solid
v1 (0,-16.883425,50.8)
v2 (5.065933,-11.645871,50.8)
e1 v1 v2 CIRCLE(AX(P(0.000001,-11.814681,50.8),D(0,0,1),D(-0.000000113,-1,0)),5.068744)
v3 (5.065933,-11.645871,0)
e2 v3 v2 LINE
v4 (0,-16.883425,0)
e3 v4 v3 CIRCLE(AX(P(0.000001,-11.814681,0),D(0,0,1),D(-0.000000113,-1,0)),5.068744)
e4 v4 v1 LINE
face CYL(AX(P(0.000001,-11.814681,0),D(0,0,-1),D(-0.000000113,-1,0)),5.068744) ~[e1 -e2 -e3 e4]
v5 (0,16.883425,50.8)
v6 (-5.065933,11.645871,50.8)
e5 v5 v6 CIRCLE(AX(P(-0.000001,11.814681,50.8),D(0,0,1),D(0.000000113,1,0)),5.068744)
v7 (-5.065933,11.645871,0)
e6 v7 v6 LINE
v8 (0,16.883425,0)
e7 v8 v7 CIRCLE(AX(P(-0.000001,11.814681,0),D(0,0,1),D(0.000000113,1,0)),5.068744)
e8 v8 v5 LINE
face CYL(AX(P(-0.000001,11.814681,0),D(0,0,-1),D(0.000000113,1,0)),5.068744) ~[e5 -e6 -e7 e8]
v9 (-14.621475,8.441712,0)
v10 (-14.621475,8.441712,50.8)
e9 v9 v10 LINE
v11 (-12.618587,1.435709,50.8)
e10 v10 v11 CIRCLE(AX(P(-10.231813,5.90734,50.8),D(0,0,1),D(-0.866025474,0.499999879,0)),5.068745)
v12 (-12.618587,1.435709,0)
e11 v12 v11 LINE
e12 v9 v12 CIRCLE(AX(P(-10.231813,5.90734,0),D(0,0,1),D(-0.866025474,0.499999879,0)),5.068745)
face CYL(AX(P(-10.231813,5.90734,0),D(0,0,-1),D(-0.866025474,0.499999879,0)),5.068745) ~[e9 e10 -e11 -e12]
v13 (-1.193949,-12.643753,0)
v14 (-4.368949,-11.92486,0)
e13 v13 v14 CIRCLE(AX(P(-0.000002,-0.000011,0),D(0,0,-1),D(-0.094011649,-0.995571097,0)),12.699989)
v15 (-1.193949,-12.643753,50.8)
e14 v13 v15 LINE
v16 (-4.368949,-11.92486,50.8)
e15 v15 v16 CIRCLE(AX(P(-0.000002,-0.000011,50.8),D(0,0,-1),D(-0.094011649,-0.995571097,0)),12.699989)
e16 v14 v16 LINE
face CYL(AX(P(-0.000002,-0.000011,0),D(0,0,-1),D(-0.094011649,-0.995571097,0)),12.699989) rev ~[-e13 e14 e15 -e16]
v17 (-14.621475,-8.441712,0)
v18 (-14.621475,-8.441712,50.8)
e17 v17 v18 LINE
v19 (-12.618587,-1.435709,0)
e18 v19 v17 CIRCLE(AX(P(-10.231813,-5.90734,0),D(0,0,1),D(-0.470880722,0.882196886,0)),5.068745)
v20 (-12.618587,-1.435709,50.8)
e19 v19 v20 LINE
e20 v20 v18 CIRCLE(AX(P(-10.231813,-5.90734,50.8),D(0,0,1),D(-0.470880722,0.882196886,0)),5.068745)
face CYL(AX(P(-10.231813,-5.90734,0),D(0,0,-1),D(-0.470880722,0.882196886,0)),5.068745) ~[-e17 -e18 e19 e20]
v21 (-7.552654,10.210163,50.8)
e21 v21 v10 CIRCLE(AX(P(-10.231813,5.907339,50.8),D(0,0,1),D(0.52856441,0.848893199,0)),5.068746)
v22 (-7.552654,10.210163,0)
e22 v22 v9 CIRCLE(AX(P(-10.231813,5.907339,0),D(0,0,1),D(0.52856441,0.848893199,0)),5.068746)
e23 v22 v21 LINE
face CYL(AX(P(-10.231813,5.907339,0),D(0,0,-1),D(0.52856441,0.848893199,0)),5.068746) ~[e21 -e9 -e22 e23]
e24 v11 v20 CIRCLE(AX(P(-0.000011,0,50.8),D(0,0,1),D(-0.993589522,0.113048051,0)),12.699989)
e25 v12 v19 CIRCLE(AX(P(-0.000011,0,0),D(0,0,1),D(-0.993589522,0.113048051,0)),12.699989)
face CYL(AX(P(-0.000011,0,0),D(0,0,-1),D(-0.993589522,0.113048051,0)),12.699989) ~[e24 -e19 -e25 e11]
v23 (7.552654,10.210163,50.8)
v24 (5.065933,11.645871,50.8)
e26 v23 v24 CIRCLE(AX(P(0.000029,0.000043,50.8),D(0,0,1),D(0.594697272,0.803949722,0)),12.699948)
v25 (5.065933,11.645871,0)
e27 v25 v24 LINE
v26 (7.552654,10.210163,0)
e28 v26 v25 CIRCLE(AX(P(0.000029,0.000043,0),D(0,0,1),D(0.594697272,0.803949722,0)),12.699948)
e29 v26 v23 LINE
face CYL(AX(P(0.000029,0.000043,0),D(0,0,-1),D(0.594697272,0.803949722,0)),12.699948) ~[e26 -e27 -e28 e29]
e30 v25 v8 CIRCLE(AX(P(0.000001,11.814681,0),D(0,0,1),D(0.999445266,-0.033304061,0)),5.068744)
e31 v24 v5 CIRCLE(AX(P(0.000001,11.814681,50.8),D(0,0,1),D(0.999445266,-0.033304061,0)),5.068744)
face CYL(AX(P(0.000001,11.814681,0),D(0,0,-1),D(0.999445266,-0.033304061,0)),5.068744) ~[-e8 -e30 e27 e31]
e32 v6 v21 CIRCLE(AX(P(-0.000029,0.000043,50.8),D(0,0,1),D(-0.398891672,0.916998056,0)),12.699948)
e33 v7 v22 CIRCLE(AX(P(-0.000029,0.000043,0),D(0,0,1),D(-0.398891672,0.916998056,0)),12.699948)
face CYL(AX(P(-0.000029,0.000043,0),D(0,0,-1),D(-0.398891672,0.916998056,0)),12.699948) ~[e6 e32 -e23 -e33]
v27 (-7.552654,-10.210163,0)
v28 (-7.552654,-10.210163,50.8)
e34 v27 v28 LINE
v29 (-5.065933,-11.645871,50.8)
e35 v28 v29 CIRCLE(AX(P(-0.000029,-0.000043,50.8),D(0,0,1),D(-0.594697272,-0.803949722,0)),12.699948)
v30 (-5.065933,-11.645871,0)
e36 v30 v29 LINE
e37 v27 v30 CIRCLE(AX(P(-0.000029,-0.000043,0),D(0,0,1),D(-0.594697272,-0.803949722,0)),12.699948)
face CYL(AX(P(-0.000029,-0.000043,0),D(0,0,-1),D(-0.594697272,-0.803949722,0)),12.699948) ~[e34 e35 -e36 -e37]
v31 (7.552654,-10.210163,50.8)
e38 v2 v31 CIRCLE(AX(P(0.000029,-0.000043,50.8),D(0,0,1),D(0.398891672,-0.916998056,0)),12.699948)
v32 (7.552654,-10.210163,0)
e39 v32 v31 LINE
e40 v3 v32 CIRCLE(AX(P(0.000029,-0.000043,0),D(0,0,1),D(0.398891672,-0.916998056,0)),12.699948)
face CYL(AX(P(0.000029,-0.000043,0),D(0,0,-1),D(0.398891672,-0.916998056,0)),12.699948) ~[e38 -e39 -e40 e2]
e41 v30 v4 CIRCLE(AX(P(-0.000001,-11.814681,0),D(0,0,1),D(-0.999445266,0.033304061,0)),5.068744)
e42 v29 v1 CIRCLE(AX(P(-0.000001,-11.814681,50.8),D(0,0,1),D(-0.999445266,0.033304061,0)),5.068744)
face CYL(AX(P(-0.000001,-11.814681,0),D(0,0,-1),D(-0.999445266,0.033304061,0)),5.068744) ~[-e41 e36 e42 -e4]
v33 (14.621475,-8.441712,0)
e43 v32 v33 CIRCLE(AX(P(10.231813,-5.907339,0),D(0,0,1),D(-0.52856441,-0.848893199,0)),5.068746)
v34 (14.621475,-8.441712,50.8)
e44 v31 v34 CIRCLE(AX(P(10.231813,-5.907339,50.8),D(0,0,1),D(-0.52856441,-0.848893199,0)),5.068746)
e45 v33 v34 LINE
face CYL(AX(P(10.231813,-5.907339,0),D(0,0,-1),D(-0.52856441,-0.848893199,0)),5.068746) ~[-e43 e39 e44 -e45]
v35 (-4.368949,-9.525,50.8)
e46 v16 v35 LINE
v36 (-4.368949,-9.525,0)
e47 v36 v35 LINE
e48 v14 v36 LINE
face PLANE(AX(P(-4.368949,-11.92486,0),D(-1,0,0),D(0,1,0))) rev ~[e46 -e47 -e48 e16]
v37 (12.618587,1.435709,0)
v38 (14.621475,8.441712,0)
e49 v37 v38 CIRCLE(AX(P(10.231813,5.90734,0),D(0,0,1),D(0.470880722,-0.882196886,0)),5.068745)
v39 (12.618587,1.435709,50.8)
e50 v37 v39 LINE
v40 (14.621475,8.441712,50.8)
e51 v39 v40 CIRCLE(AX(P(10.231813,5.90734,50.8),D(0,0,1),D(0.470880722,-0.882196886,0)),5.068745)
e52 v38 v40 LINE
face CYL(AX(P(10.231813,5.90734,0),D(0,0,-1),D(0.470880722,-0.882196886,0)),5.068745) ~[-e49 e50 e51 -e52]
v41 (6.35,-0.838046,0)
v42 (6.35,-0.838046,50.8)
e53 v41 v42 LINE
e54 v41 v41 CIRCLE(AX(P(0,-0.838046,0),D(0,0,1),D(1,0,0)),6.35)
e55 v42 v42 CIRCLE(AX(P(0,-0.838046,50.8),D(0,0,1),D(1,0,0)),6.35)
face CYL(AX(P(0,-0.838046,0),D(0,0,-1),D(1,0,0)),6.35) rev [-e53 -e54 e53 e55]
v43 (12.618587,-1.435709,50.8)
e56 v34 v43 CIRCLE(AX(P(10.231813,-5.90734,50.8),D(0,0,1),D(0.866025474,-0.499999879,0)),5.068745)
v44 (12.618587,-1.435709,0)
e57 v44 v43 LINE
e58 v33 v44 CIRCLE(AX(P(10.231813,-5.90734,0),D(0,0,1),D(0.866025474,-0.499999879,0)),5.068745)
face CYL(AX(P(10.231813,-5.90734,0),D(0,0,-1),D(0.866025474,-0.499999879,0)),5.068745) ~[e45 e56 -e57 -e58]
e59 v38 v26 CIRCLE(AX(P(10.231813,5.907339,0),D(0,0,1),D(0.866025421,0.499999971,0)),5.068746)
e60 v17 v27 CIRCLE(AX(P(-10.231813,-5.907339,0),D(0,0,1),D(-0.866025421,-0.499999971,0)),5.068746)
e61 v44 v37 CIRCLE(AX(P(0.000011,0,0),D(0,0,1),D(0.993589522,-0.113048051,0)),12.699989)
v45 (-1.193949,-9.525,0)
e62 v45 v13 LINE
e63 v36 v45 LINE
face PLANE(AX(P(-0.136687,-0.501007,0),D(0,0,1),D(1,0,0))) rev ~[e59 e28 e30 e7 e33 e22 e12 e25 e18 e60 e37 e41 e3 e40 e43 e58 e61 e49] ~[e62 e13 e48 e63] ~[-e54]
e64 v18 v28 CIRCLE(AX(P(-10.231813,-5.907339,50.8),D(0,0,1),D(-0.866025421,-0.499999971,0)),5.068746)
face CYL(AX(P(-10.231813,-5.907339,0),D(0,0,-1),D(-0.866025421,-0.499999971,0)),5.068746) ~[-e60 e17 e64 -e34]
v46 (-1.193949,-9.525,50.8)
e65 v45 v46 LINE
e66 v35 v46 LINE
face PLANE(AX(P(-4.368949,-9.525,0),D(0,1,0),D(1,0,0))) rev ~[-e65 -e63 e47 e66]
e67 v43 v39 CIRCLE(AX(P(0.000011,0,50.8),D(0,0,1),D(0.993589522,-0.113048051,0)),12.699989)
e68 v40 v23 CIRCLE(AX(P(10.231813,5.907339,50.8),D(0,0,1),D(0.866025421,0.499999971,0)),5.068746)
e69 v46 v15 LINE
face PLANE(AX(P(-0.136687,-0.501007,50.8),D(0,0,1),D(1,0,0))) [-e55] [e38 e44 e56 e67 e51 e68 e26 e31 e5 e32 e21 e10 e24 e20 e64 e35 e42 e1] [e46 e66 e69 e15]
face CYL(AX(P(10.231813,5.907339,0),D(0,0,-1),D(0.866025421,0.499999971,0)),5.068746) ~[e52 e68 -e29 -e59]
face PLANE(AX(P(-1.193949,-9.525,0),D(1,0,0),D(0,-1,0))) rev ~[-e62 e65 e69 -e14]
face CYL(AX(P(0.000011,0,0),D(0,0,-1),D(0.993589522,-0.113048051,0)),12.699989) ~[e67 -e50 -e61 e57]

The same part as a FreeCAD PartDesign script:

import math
import FreeCAD as App
import Part
import Sketcher
Q = App.Units.Quantity

doc = App.newDocument("Part")
params = doc.addObject("Spreadsheet::Sheet", "Params")
for row, (alias, value) in enumerate([
    ("sketch1_diameter", "0.5 in"),
    ("sketch1_width", "0.125 in"),
    ("pad1_length", "2 in"),
], start=1):
    params.set(f"A{row}", alias)
    params.set(f"B{row}", "=" + value)
    params.setAlias(f"B{row}", alias)

body = doc.addObject("PartDesign::Body", "Body")

sketch1 = body.newObject("Sketcher::SketchObject", "Sketch")
sketch1.AttachmentSupport = (doc.getObject("XY_Plane"), [""])
sketch1.MapMode = "FlatFace"
sketch1.addGeometry([
    Part.ArcOfCircle(Part.Circle(App.Vector(0.000001, 11.814681, 0), App.Vector(0, 0, 1), 5.068744), math.radians(-1.908535), math.radians(90.000006)),
    Part.ArcOfCircle(Part.Circle(App.Vector(-0.000001, 11.814681, 0), App.Vector(0, 0, 1), 5.068744), math.radians(89.999994), math.radians(181.908535)),
    Part.ArcOfCircle(Part.Circle(App.Vector(-0.000029, 0.000043, 0), App.Vector(0, 0, 1), 12.699948), math.radians(113.50891), math.radians(126.491054)),
    Part.ArcOfCircle(Part.Circle(App.Vector(-10.231813, 5.907339, 0), App.Vector(0, 0, 1), 5.068746), math.radians(58.091491), math.radians(150.000002)),
    Part.ArcOfCircle(Part.Circle(App.Vector(-10.231813, 5.90734, 0), App.Vector(0, 0, 1), 5.068745), math.radians(150.000008), math.radians(241.908519)),
    Part.ArcOfCircle(Part.Circle(App.Vector(-0.000011, 0, 0), App.Vector(0, 0, 1), 12.699989), math.radians(173.508948), math.radians(186.491052)),
    Part.ArcOfCircle(Part.Circle(App.Vector(-10.231813, -5.90734, 0), App.Vector(0, 0, 1), 5.068745), math.radians(118.091481), math.radians(209.999992)),
    Part.ArcOfCircle(Part.Circle(App.Vector(-10.231813, -5.907339, 0), App.Vector(0, 0, 1), 5.068746), math.radians(-150.000002), math.radians(-58.091491)),
    Part.ArcOfCircle(Part.Circle(App.Vector(-0.000029, -0.000043, 0), App.Vector(0, 0, 1), 12.699948), math.radians(-126.491054), math.radians(-113.50891)),
    Part.ArcOfCircle(Part.Circle(App.Vector(-0.000001, -11.814681, 0), App.Vector(0, 0, 1), 5.068744), math.radians(178.091465), math.radians(270.000006)),
    Part.ArcOfCircle(Part.Circle(App.Vector(0.000001, -11.814681, 0), App.Vector(0, 0, 1), 5.068744), math.radians(-90.000006), math.radians(1.908535)),
    Part.ArcOfCircle(Part.Circle(App.Vector(0.000029, -0.000043, 0), App.Vector(0, 0, 1), 12.699948), math.radians(-66.49109), math.radians(-53.508946)),
    Part.ArcOfCircle(Part.Circle(App.Vector(10.231813, -5.907339, 0), App.Vector(0, 0, 1), 5.068746), math.radians(-121.908509), math.radians(-29.999998)),
    Part.ArcOfCircle(Part.Circle(App.Vector(10.231813, -5.90734, 0), App.Vector(0, 0, 1), 5.068745), math.radians(-29.999992), math.radians(61.908519)),
    Part.ArcOfCircle(Part.Circle(App.Vector(0.000011, 0, 0), App.Vector(0, 0, 1), 12.699989), math.radians(-6.491052), math.radians(6.491052)),
    Part.ArcOfCircle(Part.Circle(App.Vector(10.231813, 5.90734, 0), App.Vector(0, 0, 1), 5.068745), math.radians(-61.908519), math.radians(29.999992)),
    Part.ArcOfCircle(Part.Circle(App.Vector(10.231813, 5.907339, 0), App.Vector(0, 0, 1), 5.068746), math.radians(29.999998), math.radians(121.908509)),
    Part.ArcOfCircle(Part.Circle(App.Vector(0.000029, 0.000043, 0), App.Vector(0, 0, 1), 12.699948), math.radians(53.508946), math.radians(66.49109)),
    Part.LineSegment(App.Vector(-4.368949, -11.92486, 0), App.Vector(-4.368949, -9.525, 0)),
    Part.LineSegment(App.Vector(-4.368949, -9.525, 0), App.Vector(-1.193949, -9.525, 0)),
    Part.LineSegment(App.Vector(-1.193949, -9.525, 0), App.Vector(-1.193949, -12.643753, 0)),
    Part.ArcOfCircle(Part.Circle(App.Vector(-0.000002, -0.000011, 0), App.Vector(0, 0, 1), 12.699989), math.radians(-110.121488), math.radians(-95.394437)),
    Part.Circle(App.Vector(0, -0.838046, 0), App.Vector(0, 0, 1), 6.35),
], False)
sketch1.addConstraint([
    Sketcher.Constraint("Tangent", 0, 2, 1, 1),
    Sketcher.Constraint("Coincident", 1, 2, 2, 1),
    Sketcher.Constraint("Coincident", 2, 2, 3, 1),
    Sketcher.Constraint("Tangent", 3, 2, 4, 1),
    Sketcher.Constraint("Coincident", 4, 2, 5, 1),
    Sketcher.Constraint("Coincident", 5, 2, 6, 1),
    Sketcher.Constraint("Tangent", 6, 2, 7, 1),
    Sketcher.Constraint("Coincident", 7, 2, 8, 1),
    Sketcher.Constraint("Coincident", 8, 2, 9, 1),
    Sketcher.Constraint("Tangent", 9, 2, 10, 1),
    Sketcher.Constraint("Coincident", 10, 2, 11, 1),
    Sketcher.Constraint("Coincident", 11, 2, 12, 1),
    Sketcher.Constraint("Tangent", 12, 2, 13, 1),
    Sketcher.Constraint("Coincident", 13, 2, 14, 1),
    Sketcher.Constraint("Coincident", 14, 2, 15, 1),
    Sketcher.Constraint("Tangent", 15, 2, 16, 1),
    Sketcher.Constraint("Coincident", 16, 2, 17, 1),
    Sketcher.Constraint("Coincident", 17, 2, 0, 1),
    Sketcher.Constraint("Coincident", 18, 2, 19, 1),
    Sketcher.Constraint("Coincident", 19, 2, 20, 1),
    Sketcher.Constraint("Coincident", 20, 2, 21, 2),
    Sketcher.Constraint("Coincident", 21, 1, 18, 1),
    Sketcher.Constraint("Vertical", 18),
    Sketcher.Constraint("Horizontal", 19),
    Sketcher.Constraint("Vertical", 20),
    Sketcher.Constraint("Equal", 0, 1),
    Sketcher.Constraint("Equal", 1, 3),
    Sketcher.Constraint("Equal", 3, 4),
    Sketcher.Constraint("Equal", 4, 6),
    Sketcher.Constraint("Equal", 6, 7),
    Sketcher.Constraint("Equal", 2, 8),
    Sketcher.Constraint("Equal", 7, 9),
    Sketcher.Constraint("Equal", 9, 10),
    Sketcher.Constraint("Equal", 8, 11),
    Sketcher.Constraint("Equal", 10, 12),
    Sketcher.Constraint("Equal", 12, 13),
    Sketcher.Constraint("Equal", 5, 14),
    Sketcher.Constraint("Equal", 13, 15),
    Sketcher.Constraint("Equal", 15, 16),
    Sketcher.Constraint("Equal", 11, 17),
    Sketcher.Constraint("Equal", 14, 21),
    Sketcher.Constraint("Symmetric", 0, 3, 9, 3, -1, 1),
    Sketcher.Constraint("Symmetric", 2, 3, 11, 3, -1, 1),
    Sketcher.Constraint("Symmetric", 3, 3, 12, 3, -1, 1),
    Sketcher.Constraint("Symmetric", 5, 3, 14, 3, -1, 1),
    Sketcher.Constraint("Symmetric", 6, 3, 15, 3, -1, 1),
    Sketcher.Constraint("Symmetric", 8, 3, 17, 3, -1, 1),
    Sketcher.Constraint("Symmetric", 8, 3, 11, 3, -2),
    Sketcher.Constraint("Symmetric", 6, 3, 12, 3, -2),
    Sketcher.Constraint("PointOnObject", 0, 3, -2),
    Sketcher.Constraint("PointOnObject", 5, 3, -1),
    Sketcher.Constraint("PointOnObject", 22, 3, -2),
    Sketcher.Constraint("PointOnObject", 0, 2, -2),
    Sketcher.Constraint("PointOnObject", 9, 2, -2),
    Sketcher.Constraint("Horizontal", 6, 2, 12, 2),
    Sketcher.Constraint("Horizontal", 3, 2, 15, 2),
    Sketcher.Constraint("Vertical", 9, 3, 21, 3),
    Sketcher.Constraint("Vertical", 3, 2, 6, 2),
    Sketcher.Constraint("Diameter", 22, Q("0.5 in")),
    Sketcher.Constraint("DistanceX", 19, 1, 19, 2, Q("0.125 in")),
    Sketcher.Constraint("DistanceY", 18, 2, -1, 1, Q("0.375 in")),
    Sketcher.Constraint("Radius", 2, Q("12.699948 mm")),
    Sketcher.Constraint("Radius", 5, Q("12.699989 mm")),
    Sketcher.Constraint("Radius", 0, Q("5.068744 mm")),
    Sketcher.Constraint("DistanceX", 3, 2, 2, 2, Q("0.2783 in")),
    Sketcher.Constraint("DistanceY", 18, 1, 18, 2, Q("2.39986 mm")),
    Sketcher.Constraint("DistanceX", 3, 3, 5, 3, Q("10.231802 mm")),
    Sketcher.Constraint("DistanceY", 20, 2, 20, 1, Q("3.118753 mm")),
    Sketcher.Constraint("DistanceY", -1, 1, 0, 3, Q("11.814681 mm")),
    Sketcher.Constraint("DistanceY", -1, 1, 3, 3, Q("5.907339 mm")),
    Sketcher.Constraint("DistanceY", -1, 1, 1, 2, Q("11.645871 mm")),
    Sketcher.Constraint("DistanceY", 6, 2, -1, 1, Q("8.441712 mm")),
    Sketcher.Constraint("DistanceX", 3, 3, 1, 3, Q("10.231812 mm")),
    Sketcher.Constraint("DistanceY", 22, 3, -1, 1, Q("0.838046 mm")),
])
sketch1.setExpression("Constraints[58]", "Params.sketch1_diameter")
sketch1.setExpression("Constraints[59]", "Params.sketch1_width")
pad1 = body.newObject("PartDesign::Pad", "Pad")
pad1.Profile = sketch1
pad1.setExpression("Length", "Params.pad1_length")

doc.recompute()
